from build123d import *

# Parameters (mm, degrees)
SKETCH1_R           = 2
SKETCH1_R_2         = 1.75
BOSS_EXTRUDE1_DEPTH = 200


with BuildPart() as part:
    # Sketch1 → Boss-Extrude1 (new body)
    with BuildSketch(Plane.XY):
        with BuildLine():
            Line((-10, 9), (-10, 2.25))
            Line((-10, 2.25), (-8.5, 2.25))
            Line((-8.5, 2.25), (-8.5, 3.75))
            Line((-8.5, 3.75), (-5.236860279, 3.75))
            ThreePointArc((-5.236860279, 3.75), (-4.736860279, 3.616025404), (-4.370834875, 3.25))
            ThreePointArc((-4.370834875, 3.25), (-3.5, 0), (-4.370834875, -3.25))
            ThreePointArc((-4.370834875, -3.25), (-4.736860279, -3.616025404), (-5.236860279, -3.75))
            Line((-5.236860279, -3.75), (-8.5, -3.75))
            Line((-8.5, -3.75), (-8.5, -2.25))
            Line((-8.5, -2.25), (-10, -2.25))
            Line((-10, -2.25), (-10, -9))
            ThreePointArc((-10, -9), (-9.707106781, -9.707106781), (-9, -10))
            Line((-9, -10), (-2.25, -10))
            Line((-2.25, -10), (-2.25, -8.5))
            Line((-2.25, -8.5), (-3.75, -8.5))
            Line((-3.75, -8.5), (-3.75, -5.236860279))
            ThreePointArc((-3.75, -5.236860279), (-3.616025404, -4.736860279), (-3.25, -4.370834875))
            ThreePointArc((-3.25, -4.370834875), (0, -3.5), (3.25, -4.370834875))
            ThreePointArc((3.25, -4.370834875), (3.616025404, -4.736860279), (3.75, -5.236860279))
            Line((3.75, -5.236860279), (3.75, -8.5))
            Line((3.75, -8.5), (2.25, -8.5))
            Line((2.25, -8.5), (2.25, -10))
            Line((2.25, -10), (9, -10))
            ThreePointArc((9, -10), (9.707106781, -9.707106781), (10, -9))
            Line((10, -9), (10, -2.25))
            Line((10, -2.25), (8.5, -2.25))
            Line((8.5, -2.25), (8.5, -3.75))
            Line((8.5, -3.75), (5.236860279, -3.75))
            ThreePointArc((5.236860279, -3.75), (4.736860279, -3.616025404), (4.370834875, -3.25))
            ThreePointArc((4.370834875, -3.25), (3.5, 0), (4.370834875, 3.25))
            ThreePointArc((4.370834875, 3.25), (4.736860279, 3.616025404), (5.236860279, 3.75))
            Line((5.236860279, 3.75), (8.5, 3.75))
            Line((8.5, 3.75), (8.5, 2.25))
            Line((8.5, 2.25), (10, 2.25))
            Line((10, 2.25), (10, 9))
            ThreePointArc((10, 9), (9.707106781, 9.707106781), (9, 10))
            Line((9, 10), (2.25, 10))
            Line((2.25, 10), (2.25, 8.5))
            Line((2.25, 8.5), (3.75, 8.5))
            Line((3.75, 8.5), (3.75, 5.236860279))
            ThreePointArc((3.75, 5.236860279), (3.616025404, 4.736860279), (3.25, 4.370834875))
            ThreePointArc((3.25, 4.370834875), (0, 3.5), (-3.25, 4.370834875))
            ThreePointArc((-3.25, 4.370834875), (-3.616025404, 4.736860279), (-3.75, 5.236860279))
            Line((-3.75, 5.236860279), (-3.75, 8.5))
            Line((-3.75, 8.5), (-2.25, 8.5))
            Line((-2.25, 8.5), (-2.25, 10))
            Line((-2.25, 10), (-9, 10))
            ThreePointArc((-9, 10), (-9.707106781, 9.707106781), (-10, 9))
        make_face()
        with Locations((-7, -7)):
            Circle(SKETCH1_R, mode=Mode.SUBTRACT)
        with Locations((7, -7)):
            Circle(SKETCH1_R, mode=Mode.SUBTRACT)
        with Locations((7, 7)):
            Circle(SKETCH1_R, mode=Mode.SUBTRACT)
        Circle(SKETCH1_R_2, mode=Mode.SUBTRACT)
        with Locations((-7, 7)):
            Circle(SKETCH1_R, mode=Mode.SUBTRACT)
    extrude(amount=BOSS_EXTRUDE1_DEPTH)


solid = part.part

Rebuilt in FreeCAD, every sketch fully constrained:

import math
import FreeCAD as App
import Part
import Sketcher
from FreeCAD import Vector
Q = App.Units.Quantity

doc = App.newDocument("Part")
body = doc.addObject("PartDesign::Body", "Body")

# Sketch on XY plane
sketch1 = body.newObject("Sketcher::SketchObject", "Sketch")
sketch1.AttachmentSupport = (doc.getObject("XY_Plane"), [""])
sketch1.MapMode = "FlatFace"
sketch1.addGeometry([
    Part.LineSegment(Vector(-10, 9, 0), Vector(-10, 2.2, 0)),  # 0
    Part.LineSegment(Vector(-10, 2.2, 0), Vector(-8.5, 2.2, 0)),  # 1
    Part.LineSegment(Vector(-8.5, 2.2, 0), Vector(-8.5, 3.8, 0)),  # 2
    Part.LineSegment(Vector(-8.5, 3.8, 0), Vector(-5.2, 3.8, 0)),  # 3
    Part.ArcOfCircle(Part.Circle(Vector(-5.2, 2.8, 0), Vector(0, 0, 1), 1), math.radians(30), math.radians(90)),  # 4
    Part.ArcOfCircle(Part.Circle(Vector(-10, 0, 0), Vector(0, 0, 1), 6.5), math.radians(-30), math.radians(30)),  # 5
    Part.ArcOfCircle(Part.Circle(Vector(-5.2, -2.8, 0), Vector(0, 0, 1), 1), math.radians(-90), math.radians(-30)),  # 6
    Part.LineSegment(Vector(-5.2, -3.8, 0), Vector(-8.5, -3.8, 0)),  # 7
    Part.LineSegment(Vector(-8.5, -3.8, 0), Vector(-8.5, -2.2, 0)),  # 8
    Part.LineSegment(Vector(-8.5, -2.2, 0), Vector(-10, -2.2, 0)),  # 9
    Part.LineSegment(Vector(-10, -2.2, 0), Vector(-10, -9, 0)),  # 10
    Part.ArcOfCircle(Part.Circle(Vector(-9, -9, 0), Vector(0, 0, 1), 1), math.radians(-180), math.radians(-90)),  # 11
    Part.LineSegment(Vector(-9, -10, 0), Vector(-2.2, -10, 0)),  # 12
    Part.LineSegment(Vector(-2.2, -10, 0), Vector(-2.2, -8.5, 0)),  # 13
    Part.LineSegment(Vector(-2.2, -8.5, 0), Vector(-3.8, -8.5, 0)),  # 14
    Part.LineSegment(Vector(-3.8, -8.5, 0), Vector(-3.8, -5.2, 0)),  # 15
    Part.ArcOfCircle(Part.Circle(Vector(-2.8, -5.2, 0), Vector(0, 0, 1), 1), math.radians(120), math.radians(180)),  # 16
    Part.ArcOfCircle(Part.Circle(Vector(0, -10, 0), Vector(0, 0, 1), 6.5), math.radians(60), math.radians(120)),  # 17
    Part.ArcOfCircle(Part.Circle(Vector(2.8, -5.2, 0), Vector(0, 0, 1), 1), math.radians(0), math.radians(60)),  # 18
    Part.LineSegment(Vector(3.8, -5.2, 0), Vector(3.8, -8.5, 0)),  # 19
    Part.LineSegment(Vector(3.8, -8.5, 0), Vector(2.2, -8.5, 0)),  # 20
    Part.LineSegment(Vector(2.2, -8.5, 0), Vector(2.2, -10, 0)),  # 21
    Part.LineSegment(Vector(2.2, -10, 0), Vector(9, -10, 0)),  # 22
    Part.ArcOfCircle(Part.Circle(Vector(9, -9, 0), Vector(0, 0, 1), 1), math.radians(-90), math.radians(0)),  # 23
    Part.LineSegment(Vector(10, -9, 0), Vector(10, -2.2, 0)),  # 24
    Part.LineSegment(Vector(10, -2.2, 0), Vector(8.5, -2.2, 0)),  # 25
    Part.LineSegment(Vector(8.5, -2.2, 0), Vector(8.5, -3.8, 0)),  # 26
    Part.LineSegment(Vector(8.5, -3.8, 0), Vector(5.2, -3.8, 0)),  # 27
    Part.ArcOfCircle(Part.Circle(Vector(5.2, -2.8, 0), Vector(0, 0, 1), 1), math.radians(-150), math.radians(-90)),  # 28
    Part.ArcOfCircle(Part.Circle(Vector(10, 0, 0), Vector(0, 0, 1), 6.5), math.radians(150), math.radians(210)),  # 29
    Part.ArcOfCircle(Part.Circle(Vector(5.2, 2.8, 0), Vector(0, 0, 1), 1), math.radians(90), math.radians(150)),  # 30
    Part.LineSegment(Vector(5.2, 3.8, 0), Vector(8.5, 3.8, 0)),  # 31
    Part.LineSegment(Vector(8.5, 3.8, 0), Vector(8.5, 2.2, 0)),  # 32
    Part.LineSegment(Vector(8.5, 2.2, 0), Vector(10, 2.2, 0)),  # 33
    Part.LineSegment(Vector(10, 2.2, 0), Vector(10, 9, 0)),  # 34
    Part.ArcOfCircle(Part.Circle(Vector(9, 9, 0), Vector(0, 0, 1), 1), math.radians(0), math.radians(90)),  # 35
    Part.LineSegment(Vector(9, 10, 0), Vector(2.2, 10, 0)),  # 36
    Part.LineSegment(Vector(2.2, 10, 0), Vector(2.2, 8.5, 0)),  # 37
    Part.LineSegment(Vector(2.2, 8.5, 0), Vector(3.8, 8.5, 0)),  # 38
    Part.LineSegment(Vector(3.8, 8.5, 0), Vector(3.8, 5.2, 0)),  # 39
    Part.ArcOfCircle(Part.Circle(Vector(2.8, 5.2, 0), Vector(0, 0, 1), 1), math.radians(-60), math.radians(0)),  # 40
    Part.ArcOfCircle(Part.Circle(Vector(0, 10, 0), Vector(0, 0, 1), 6.5), math.radians(-120), math.radians(-60)),  # 41
    Part.ArcOfCircle(Part.Circle(Vector(-2.8, 5.2, 0), Vector(0, 0, 1), 1), math.radians(180), math.radians(240)),  # 42
    Part.LineSegment(Vector(-3.8, 5.2, 0), Vector(-3.8, 8.5, 0)),  # 43
    Part.LineSegment(Vector(-3.8, 8.5, 0), Vector(-2.2, 8.5, 0)),  # 44
    Part.LineSegment(Vector(-2.2, 8.5, 0), Vector(-2.2, 10, 0)),  # 45
    Part.LineSegment(Vector(-2.2, 10, 0), Vector(-9, 10, 0)),  # 46
    Part.ArcOfCircle(Part.Circle(Vector(-9, 9, 0), Vector(0, 0, 1), 1), math.radians(90), math.radians(180)),  # 47
    Part.Circle(Vector(-7, -7, 0), Vector(0, 0, 1), 2),  # 48
    Part.Circle(Vector(7, -7, 0), Vector(0, 0, 1), 2),  # 49
    Part.Circle(Vector(-7, 7, 0), Vector(0, 0, 1), 2),  # 50
    Part.Circle(Vector(0, 0, 0), Vector(0, 0, 1), 1.8),  # 51
    Part.Circle(Vector(7, 7, 0), Vector(0, 0, 1), 2),  # 52
], False)
sketch1.addConstraint([
    Sketcher.Constraint("Coincident", 0, 2, 1, 1),
    Sketcher.Constraint("Coincident", 1, 2, 2, 1),
    Sketcher.Constraint("Coincident", 2, 2, 3, 1),
    Sketcher.Constraint("Tangent", 3, 2, 4, 2),
    Sketcher.Constraint("Tangent", 4, 1, 5, 2),
    Sketcher.Constraint("Tangent", 5, 1, 6, 2),
    Sketcher.Constraint("Tangent", 6, 1, 7, 1),
    Sketcher.Constraint("Coincident", 7, 2, 8, 1),
    Sketcher.Constraint("Coincident", 8, 2, 9, 1),
    Sketcher.Constraint("Coincident", 9, 2, 10, 1),
    Sketcher.Constraint("Tangent", 10, 2, 11, 1),
    Sketcher.Constraint("Tangent", 11, 2, 12, 1),
    Sketcher.Constraint("Coincident", 12, 2, 13, 1),
    Sketcher.Constraint("Coincident", 13, 2, 14, 1),
    Sketcher.Constraint("Coincident", 14, 2, 15, 1),
    Sketcher.Constraint("Tangent", 15, 2, 16, 2),
    Sketcher.Constraint("Tangent", 16, 1, 17, 2),
    Sketcher.Constraint("Tangent", 17, 1, 18, 2),
    Sketcher.Constraint("Tangent", 18, 1, 19, 1),
    Sketcher.Constraint("Coincident", 19, 2, 20, 1),
    Sketcher.Constraint("Coincident", 20, 2, 21, 1),
    Sketcher.Constraint("Coincident", 21, 2, 22, 1),
    Sketcher.Constraint("Tangent", 22, 2, 23, 1),
    Sketcher.Constraint("Tangent", 23, 2, 24, 1),
    Sketcher.Constraint("Coincident", 24, 2, 25, 1),
    Sketcher.Constraint("Coincident", 25, 2, 26, 1),
    Sketcher.Constraint("Coincident", 26, 2, 27, 1),
    Sketcher.Constraint("Tangent", 27, 2, 28, 2),
    Sketcher.Constraint("Tangent", 28, 1, 29, 2),
    Sketcher.Constraint("Tangent", 29, 1, 30, 2),
    Sketcher.Constraint("Tangent", 30, 1, 31, 1),
    Sketcher.Constraint("Coincident", 31, 2, 32, 1),
    Sketcher.Constraint("Coincident", 32, 2, 33, 1),
    Sketcher.Constraint("Coincident", 33, 2, 34, 1),
    Sketcher.Constraint("Tangent", 34, 2, 35, 1),
    Sketcher.Constraint("Tangent", 35, 2, 36, 1),
    Sketcher.Constraint("Coincident", 36, 2, 37, 1),
    Sketcher.Constraint("Coincident", 37, 2, 38, 1),
    Sketcher.Constraint("Coincident", 38, 2, 39, 1),
    Sketcher.Constraint("Tangent", 39, 2, 40, 2),
    Sketcher.Constraint("Tangent", 40, 1, 41, 2),
    Sketcher.Constraint("Tangent", 41, 1, 42, 2),
    Sketcher.Constraint("Tangent", 42, 1, 43, 1),
    Sketcher.Constraint("Coincident", 43, 2, 44, 1),
    Sketcher.Constraint("Coincident", 44, 2, 45, 1),
    Sketcher.Constraint("Coincident", 45, 2, 46, 1),
    Sketcher.Constraint("Tangent", 46, 2, 47, 1),
    Sketcher.Constraint("Tangent", 47, 2, 0, 1),
    Sketcher.Constraint("Vertical", 0),
    Sketcher.Constraint("Horizontal", 1),
    Sketcher.Constraint("Vertical", 2),
    Sketcher.Constraint("Horizontal", 3),
    Sketcher.Constraint("Horizontal", 7),
    Sketcher.Constraint("Vertical", 8),
    Sketcher.Constraint("Horizontal", 9),
    Sketcher.Constraint("Vertical", 10),
    Sketcher.Constraint("Horizontal", 12),
    Sketcher.Constraint("Vertical", 13),
    Sketcher.Constraint("Horizontal", 14),
    Sketcher.Constraint("Vertical", 15),
    Sketcher.Constraint("Vertical", 19),
    Sketcher.Constraint("Horizontal", 20),
    Sketcher.Constraint("Vertical", 21),
    Sketcher.Constraint("Horizontal", 22),
    Sketcher.Constraint("Vertical", 24),
    Sketcher.Constraint("Horizontal", 25),
    Sketcher.Constraint("Vertical", 26),
    Sketcher.Constraint("Horizontal", 27),
    Sketcher.Constraint("Horizontal", 31),
    Sketcher.Constraint("Vertical", 32),
    Sketcher.Constraint("Horizontal", 33),
    Sketcher.Constraint("Vertical", 34),
    Sketcher.Constraint("Horizontal", 36),
    Sketcher.Constraint("Vertical", 37),
    Sketcher.Constraint("Horizontal", 38),
    Sketcher.Constraint("Vertical", 39),
    Sketcher.Constraint("Vertical", 43),
    Sketcher.Constraint("Horizontal", 44),
    Sketcher.Constraint("Vertical", 45),
    Sketcher.Constraint("Horizontal", 46),
    Sketcher.Constraint("Coincident", 51, 3, -1, 1),
    Sketcher.Constraint("Equal", 4, 6),
    Sketcher.Constraint("Equal", 6, 11),
    Sketcher.Constraint("Equal", 11, 16),
    Sketcher.Constraint("Equal", 5, 17),
    Sketcher.Constraint("Equal", 16, 18),
    Sketcher.Constraint("Equal", 18, 23),
    Sketcher.Constraint("Equal", 23, 28),
    Sketcher.Constraint("Equal", 17, 29),
    Sketcher.Constraint("Equal", 28, 30),
    Sketcher.Constraint("Equal", 30, 35),
    Sketcher.Constraint("Equal", 35, 40),
    Sketcher.Constraint("Equal", 29, 41),
    Sketcher.Constraint("Equal", 40, 42),
    Sketcher.Constraint("Equal", 42, 47),
    Sketcher.Constraint("Equal", 48, 49),
    Sketcher.Constraint("Equal", 49, 50),
    Sketcher.Constraint("Equal", 50, 52),
    Sketcher.Constraint("Symmetric", 4, 3, 28, 3, -1, 1),
    Sketcher.Constraint("Symmetric", 6, 3, 30, 3, -1, 1),
    Sketcher.Constraint("Symmetric", 11, 3, 35, 3, -1, 1),
    Sketcher.Constraint("Symmetric", 16, 3, 40, 3, -1, 1),
    Sketcher.Constraint("Symmetric", 18, 3, 42, 3, -1, 1),
    Sketcher.Constraint("Symmetric", 23, 3, 47, 3, -1, 1),
    Sketcher.Constraint("Symmetric", 49, 3, 50, 3, -1, 1),
    Sketcher.Constraint("Symmetric", 48, 3, 52, 3, -1, 1),
    Sketcher.Constraint("Symmetric", 1, 2, 25, 2, -1, 1),
    Sketcher.Constraint("Symmetric", 8, 2, 32, 2, -1, 1),
    Sketcher.Constraint("Symmetric", 13, 2, 37, 2, -1, 1),
    Sketcher.Constraint("Symmetric", 20, 2, 44, 2, -1, 1),
    Sketcher.Constraint("Symmetric", 16, 3, 18, 3, -2),
    Sketcher.Constraint("Symmetric", 11, 3, 23, 3, -2),
    Sketcher.Constraint("Symmetric", 6, 3, 28, 3, -2),
    Sketcher.Constraint("Symmetric", 48, 3, 49, 3, -2),
    Sketcher.Constraint("Symmetric", 13, 2, 20, 2, -2),
    Sketcher.Constraint("Symmetric", 8, 2, 25, 2, -2),
    Sketcher.Constraint("Horizontal", 17, 3, 11, 2),
    Sketcher.Constraint("Vertical", 5, 3, 0, 2),
    Sketcher.Constraint("Equal", 9, 14),
    Sketcher.Constraint("Equal", 46, 0),
    Sketcher.Constraint("Equal", 44, 2),
    Sketcher.Constraint("Equal", 8, 13),
    Sketcher.Constraint("Equal", 31, 15),
    Sketcher.Constraint("Diameter", 48, Q("4 mm")),
    Sketcher.Constraint("Radius", 4, Q("1 mm")),
    Sketcher.Constraint("Diameter", 51, Q("3.5 mm")),
    Sketcher.Constraint("Radius", 5, Q("6.5 mm")),
    Sketcher.Constraint("DistanceX", 1, 1, 1, 2, Q("1.5 mm")),
    Sketcher.Constraint("DistanceX", 5, 3, -1, 1, Q("10 mm")),
    Sketcher.Constraint("DistanceX", 48, 3, -1, 1, Q("7 mm")),
    Sketcher.Constraint("DistanceY", 48, 3, -1, 1, Q("7 mm")),
    Sketcher.Constraint("DistanceX", 12, 1, 12, 2, Q("6.75 mm")),
])
pad1 = body.newObject("PartDesign::Pad", "Pad")
pad1.Profile = sketch1
pad1.Length = 200

doc.recompute()
